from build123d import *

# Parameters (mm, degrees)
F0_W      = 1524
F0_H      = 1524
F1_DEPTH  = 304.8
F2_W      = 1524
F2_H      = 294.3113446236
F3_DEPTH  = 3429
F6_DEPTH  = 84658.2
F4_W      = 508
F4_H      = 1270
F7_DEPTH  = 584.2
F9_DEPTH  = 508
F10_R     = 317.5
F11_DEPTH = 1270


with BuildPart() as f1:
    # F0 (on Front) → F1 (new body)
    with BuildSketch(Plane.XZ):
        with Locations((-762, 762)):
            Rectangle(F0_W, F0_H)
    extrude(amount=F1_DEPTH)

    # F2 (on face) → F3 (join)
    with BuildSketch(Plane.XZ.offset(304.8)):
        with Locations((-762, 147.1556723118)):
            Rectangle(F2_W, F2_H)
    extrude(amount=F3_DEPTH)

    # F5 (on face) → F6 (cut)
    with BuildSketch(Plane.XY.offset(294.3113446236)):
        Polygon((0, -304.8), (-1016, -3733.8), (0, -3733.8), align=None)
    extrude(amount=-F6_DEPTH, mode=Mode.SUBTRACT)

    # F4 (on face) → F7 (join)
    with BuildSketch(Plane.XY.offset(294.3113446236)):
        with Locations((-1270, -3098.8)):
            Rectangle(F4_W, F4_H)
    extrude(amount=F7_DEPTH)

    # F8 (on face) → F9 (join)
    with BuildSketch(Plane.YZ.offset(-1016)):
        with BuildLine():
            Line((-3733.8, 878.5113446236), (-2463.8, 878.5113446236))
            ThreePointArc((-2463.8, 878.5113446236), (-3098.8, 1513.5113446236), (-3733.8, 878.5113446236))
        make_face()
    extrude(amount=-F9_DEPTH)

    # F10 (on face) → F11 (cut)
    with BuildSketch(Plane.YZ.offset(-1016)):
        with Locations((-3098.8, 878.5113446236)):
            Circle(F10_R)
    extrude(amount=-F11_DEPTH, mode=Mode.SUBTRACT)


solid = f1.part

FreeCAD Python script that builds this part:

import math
import FreeCAD as App
import Part
import Sketcher

V = App.Vector
Q = App.Units.Quantity


def add_polygon(sketch, points):
    """Adds a closed chain of lines whose ends are joined by coincident constraints."""
    first, n = sketch.GeometryCount, len(points)
    for a, b in zip(points, points[1:] + points[:1]):
        sketch.addGeometry(Part.LineSegment(App.Vector(*a, 0), App.Vector(*b, 0)), False)
    for i in range(n):
        sketch.addConstraint(Sketcher.Constraint("Coincident", first + i, 2, first + (i + 1) % n, 1))

doc = App.newDocument("Part")
body = doc.addObject("PartDesign::Body", "Body")

# Sketch on XZ plane
sketch1 = body.newObject("Sketcher::SketchObject", "Sketch")
sketch1.AttachmentSupport = (doc.getObject("XZ_Plane"), [""])
sketch1.MapMode = "FlatFace"
add_polygon(sketch1, [(-1524, 1524), (-1524, 0), (0, 0), (0, 1524)])  # lines 0-3
sketch1.addConstraint(Sketcher.Constraint("Vertical", 0))
sketch1.addConstraint(Sketcher.Constraint("Horizontal", 1))
sketch1.addConstraint(Sketcher.Constraint("Vertical", 2))
sketch1.addConstraint(Sketcher.Constraint("Horizontal", 3))
sketch1.addConstraint(Sketcher.Constraint("Coincident", 1, 2, -1, 1))
sketch1.addConstraint(Sketcher.Constraint("Equal", 3, 0))
sketch1.addConstraint(Sketcher.Constraint("DistanceX", 1, 1, 1, 2, Q("60 in")))
pad1 = body.newObject("PartDesign::Pad", "Pad")
pad1.Profile = sketch1
pad1.Length = Q("12 in")

# Sketch on XZ plane
sketch2 = body.newObject("Sketcher::SketchObject", "Sketch001")
sketch2.AttachmentSupport = (doc.getObject("XZ_Plane"), [""])
sketch2.MapMode = "FlatFace"
sketch2.AttachmentOffset = App.Placement(V(0, 0, 12 * 25.4), App.Rotation())
add_polygon(sketch2, [(-1524, 294), (-1524, 0), (0, 0), (0, 294)])  # lines 0-3
sketch2.addConstraint(Sketcher.Constraint("Vertical", 0))
sketch2.addConstraint(Sketcher.Constraint("Horizontal", 1))
sketch2.addConstraint(Sketcher.Constraint("Vertical", 2))
sketch2.addConstraint(Sketcher.Constraint("Horizontal", 3))
sketch2.addConstraint(Sketcher.Constraint("Coincident", 1, 2, -1, 1))
sketch2.addConstraint(Sketcher.Constraint("DistanceX", 1, 1, 1, 2, Q("60 in")))
sketch2.addConstraint(Sketcher.Constraint("DistanceY", 0, 2, 0, 1, Q("294.311345 mm")))
pad2 = body.newObject("PartDesign::Pad", "Pad001")
pad2.Profile = sketch2
pad2.Length = Q("135 in")

# Sketch on XY plane
sketch3 = body.newObject("Sketcher::SketchObject", "Sketch002")
sketch3.AttachmentSupport = (doc.getObject("XY_Plane"), [""])
sketch3.MapMode = "FlatFace"
sketch3.AttachmentOffset = App.Placement(V(0, 0, 294.311345), App.Rotation())
add_polygon(sketch3, [(0, -305), (-1016, -3734), (0, -3734)])  # lines 0-2
sketch3.addConstraint(Sketcher.Constraint("Horizontal", 1))
sketch3.addConstraint(Sketcher.Constraint("Vertical", 2))
sketch3.addConstraint(Sketcher.Constraint("PointOnObject", 1, 2, -2))
sketch3.addConstraint(Sketcher.Constraint("DistanceX", 1, 1, 1, 2, Q("40 in")))
sketch3.addConstraint(Sketcher.Constraint("DistanceY", 2, 1, 2, 2, Q("135 in")))
sketch3.addConstraint(Sketcher.Constraint("DistanceY", 0, 2, -1, 1, Q("147 in")))
pocket1 = body.newObject("PartDesign::Pocket", "Pocket")
pocket1.Profile = sketch3
pocket1.Length = Q("3333 in")

# Sketch on XY plane
sketch4 = body.newObject("Sketcher::SketchObject", "Sketch003")
sketch4.AttachmentSupport = (doc.getObject("XY_Plane"), [""])
sketch4.MapMode = "FlatFace"
sketch4.AttachmentOffset = App.Placement(V(0, 0, 294.311345), App.Rotation())
add_polygon(sketch4, [(-1524, -2464), (-1524, -3734), (-1016, -3734), (-1016, -2464)])  # lines 0-3
sketch4.addConstraint(Sketcher.Constraint("Vertical", 0))
sketch4.addConstraint(Sketcher.Constraint("Horizontal", 1))
sketch4.addConstraint(Sketcher.Constraint("Vertical", 2))
sketch4.addConstraint(Sketcher.Constraint("Horizontal", 3))
sketch4.addConstraint(Sketcher.Constraint("DistanceX", 1, 1, 1, 2, Q("20 in")))
sketch4.addConstraint(Sketcher.Constraint("DistanceY", 0, 2, 0, 1, Q("50 in")))
sketch4.addConstraint(Sketcher.Constraint("DistanceX", 0, 2, -1, 1, Q("60 in")))
sketch4.addConstraint(Sketcher.Constraint("DistanceY", 0, 2, -1, 1, Q("147 in")))
pad3 = body.newObject("PartDesign::Pad", "Pad002")
pad3.Profile = sketch4
pad3.Length = Q("23 in")

# Sketch on YZ plane
sketch5 = body.newObject("Sketcher::SketchObject", "Sketch004")
sketch5.AttachmentSupport = (doc.getObject("YZ_Plane"), [""])
sketch5.MapMode = "FlatFace"
sketch5.AttachmentOffset = App.Placement(V(0, 0, -40 * 25.4), App.Rotation())
sketch5.addGeometry(Part.LineSegment(V(-3734, 879, 0), V(-2464, 879, 0)), False)
sketch5.addGeometry(Part.ArcOfCircle(Part.Circle(V(-3099, 879, 0), V(0, 0, 1), 635), math.radians(0), math.radians(180)), False)
sketch5.addConstraint(Sketcher.Constraint("Coincident", 0, 1, 1, 2))
sketch5.addConstraint(Sketcher.Constraint("Coincident", 1, 1, 0, 2))
sketch5.addConstraint(Sketcher.Constraint("Horizontal", 0))
sketch5.addConstraint(Sketcher.Constraint("Horizontal", 1, 3, 0, 1))
sketch5.addConstraint(Sketcher.Constraint("Radius", 1, Q("25 in")))
sketch5.addConstraint(Sketcher.Constraint("DistanceX", 1, 3, -1, 1, Q("122 in")))
sketch5.addConstraint(Sketcher.Constraint("DistanceY", -1, 1, 1, 3, Q("878.511345 mm")))
pad4 = body.newObject("PartDesign::Pad", "Pad003")
pad4.Profile = sketch5
pad4.Length = Q("20 in")
pad4.Reversed = True

# Sketch on YZ plane
sketch6 = body.newObject("Sketcher::SketchObject", "Sketch005")
sketch6.AttachmentSupport = (doc.getObject("YZ_Plane"), [""])
sketch6.MapMode = "FlatFace"
sketch6.AttachmentOffset = App.Placement(V(0, 0, -40 * 25.4), App.Rotation())
sketch6.addGeometry(Part.Circle(V(-3099, 879, 0), V(0, 0, 1), 318), False)
sketch6.addConstraint(Sketcher.Constraint("Diameter", 0, Q("25 in")))
sketch6.addConstraint(Sketcher.Constraint("DistanceX", 0, 3, -1, 1, Q("122 in")))
sketch6.addConstraint(Sketcher.Constraint("DistanceY", -1, 1, 0, 3, Q("878.511345 mm")))
pocket2 = body.newObject("PartDesign::Pocket", "Pocket001")
pocket2.Profile = sketch6
pocket2.Length = Q("50 in")

doc.recompute()
